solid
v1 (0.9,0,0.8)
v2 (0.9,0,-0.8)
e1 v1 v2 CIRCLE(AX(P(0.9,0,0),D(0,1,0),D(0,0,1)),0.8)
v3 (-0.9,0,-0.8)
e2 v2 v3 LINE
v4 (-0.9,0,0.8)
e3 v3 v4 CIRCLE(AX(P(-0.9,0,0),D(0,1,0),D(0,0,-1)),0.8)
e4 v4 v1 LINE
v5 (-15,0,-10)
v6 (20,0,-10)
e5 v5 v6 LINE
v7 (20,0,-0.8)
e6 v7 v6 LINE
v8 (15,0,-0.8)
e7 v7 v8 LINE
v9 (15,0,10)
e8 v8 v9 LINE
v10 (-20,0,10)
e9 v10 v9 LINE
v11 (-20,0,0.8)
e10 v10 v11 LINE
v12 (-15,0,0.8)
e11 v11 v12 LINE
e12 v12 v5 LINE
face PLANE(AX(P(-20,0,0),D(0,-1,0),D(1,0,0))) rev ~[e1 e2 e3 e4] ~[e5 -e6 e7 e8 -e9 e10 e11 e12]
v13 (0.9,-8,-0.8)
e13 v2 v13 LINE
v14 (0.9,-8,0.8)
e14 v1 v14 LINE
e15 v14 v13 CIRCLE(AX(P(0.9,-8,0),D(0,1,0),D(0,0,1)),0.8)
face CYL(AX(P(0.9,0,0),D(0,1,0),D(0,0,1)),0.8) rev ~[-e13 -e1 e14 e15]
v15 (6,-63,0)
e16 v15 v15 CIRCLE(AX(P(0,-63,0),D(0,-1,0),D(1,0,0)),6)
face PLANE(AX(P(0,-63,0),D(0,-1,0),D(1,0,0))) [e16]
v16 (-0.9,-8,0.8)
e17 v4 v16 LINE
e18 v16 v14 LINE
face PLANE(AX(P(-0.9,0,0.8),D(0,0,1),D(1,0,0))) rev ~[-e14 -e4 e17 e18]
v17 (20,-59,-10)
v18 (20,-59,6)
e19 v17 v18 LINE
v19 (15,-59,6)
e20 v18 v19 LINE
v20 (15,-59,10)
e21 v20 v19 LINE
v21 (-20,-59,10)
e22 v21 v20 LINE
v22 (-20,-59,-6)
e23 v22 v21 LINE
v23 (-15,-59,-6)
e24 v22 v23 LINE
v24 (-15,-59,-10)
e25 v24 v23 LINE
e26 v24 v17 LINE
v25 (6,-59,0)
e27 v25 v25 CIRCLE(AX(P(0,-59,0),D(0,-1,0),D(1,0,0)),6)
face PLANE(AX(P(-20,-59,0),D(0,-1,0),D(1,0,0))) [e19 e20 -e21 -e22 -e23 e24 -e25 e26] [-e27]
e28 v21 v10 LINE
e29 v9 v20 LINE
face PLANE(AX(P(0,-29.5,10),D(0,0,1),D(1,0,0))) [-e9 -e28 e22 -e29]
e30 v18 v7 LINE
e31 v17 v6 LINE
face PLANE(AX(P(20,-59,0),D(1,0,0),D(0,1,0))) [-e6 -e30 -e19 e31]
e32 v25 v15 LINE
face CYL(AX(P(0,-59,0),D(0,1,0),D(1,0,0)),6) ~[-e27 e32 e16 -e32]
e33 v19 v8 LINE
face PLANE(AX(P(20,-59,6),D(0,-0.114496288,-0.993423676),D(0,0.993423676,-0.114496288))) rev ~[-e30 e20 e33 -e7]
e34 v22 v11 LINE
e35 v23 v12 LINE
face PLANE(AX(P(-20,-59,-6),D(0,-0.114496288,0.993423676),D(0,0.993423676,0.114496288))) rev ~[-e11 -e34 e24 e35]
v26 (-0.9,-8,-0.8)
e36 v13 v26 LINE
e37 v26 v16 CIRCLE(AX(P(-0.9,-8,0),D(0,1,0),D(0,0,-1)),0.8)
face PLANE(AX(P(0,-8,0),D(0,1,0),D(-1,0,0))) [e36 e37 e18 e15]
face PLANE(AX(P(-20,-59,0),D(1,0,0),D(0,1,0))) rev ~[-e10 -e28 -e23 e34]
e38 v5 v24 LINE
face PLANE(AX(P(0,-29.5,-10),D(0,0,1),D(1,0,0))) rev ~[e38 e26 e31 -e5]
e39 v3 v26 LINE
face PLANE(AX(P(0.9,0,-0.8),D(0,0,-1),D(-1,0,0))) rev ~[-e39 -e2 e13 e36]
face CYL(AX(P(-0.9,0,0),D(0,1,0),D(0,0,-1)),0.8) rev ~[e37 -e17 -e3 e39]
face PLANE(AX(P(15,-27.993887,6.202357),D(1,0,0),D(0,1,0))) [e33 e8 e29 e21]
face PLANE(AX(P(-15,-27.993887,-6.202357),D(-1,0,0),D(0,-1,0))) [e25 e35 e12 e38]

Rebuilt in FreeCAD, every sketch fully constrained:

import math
import FreeCAD as App
import Part
import Sketcher

V = App.Vector


def add_polygon(sketch, points):
    """Adds a closed chain of lines whose ends are joined by coincident constraints."""
    first, n = sketch.GeometryCount, len(points)
    for a, b in zip(points, points[1:] + points[:1]):
        sketch.addGeometry(Part.LineSegment(App.Vector(*a, 0), App.Vector(*b, 0)), False)
    for i in range(n):
        sketch.addConstraint(Sketcher.Constraint("Coincident", first + i, 2, first + (i + 1) % n, 1))

doc = App.newDocument("Part")
body = doc.addObject("PartDesign::Body", "Body")

# Sketch on XY plane
sketch1 = body.newObject("Sketcher::SketchObject", "Sketch")
sketch1.AttachmentSupport = (doc.getObject("XY_Plane"), [""])
sketch1.MapMode = "FlatFace"
add_polygon(sketch1, [(-20, 0), (-20, -59), (20, -59), (20, 0)])  # lines 0-3
sketch1.addConstraint([
    Sketcher.Constraint("Vertical", 0),
    Sketcher.Constraint("Horizontal", 1),
    Sketcher.Constraint("Vertical", 2),
    Sketcher.Constraint("Horizontal", 3),
    Sketcher.Constraint("Symmetric", 2, 2, 3, 2, -1, 1),
    Sketcher.Constraint("DistanceX", 1, 1, 1, 2, 40.0),
    Sketcher.Constraint("DistanceY", 0, 2, 0, 1, 59.0),
])
pad1 = body.newObject("PartDesign::Pad", "Pad")
pad1.Profile = sketch1
pad1.Length = 20
pad1.Midplane = True

# Sketch on XZ plane
sketch2 = body.newObject("Sketcher::SketchObject", "Sketch001")
sketch2.AttachmentSupport = (doc.getObject("XZ_Plane"), [""])
sketch2.MapMode = "FlatFace"
sketch2.addGeometry([
    Part.LineSegment(V(0.9, -0.8, 0), V(-0.9, -0.8, 0)),
    Part.ArcOfCircle(Part.Circle(V(-0.9, 0, 0), V(0, 0, 1), 0.8), math.radians(90), math.radians(270)),
    Part.LineSegment(V(-0.9, 0.8, 0), V(0.9, 0.8, 0)),
    Part.ArcOfCircle(Part.Circle(V(0.9, 0, 0), V(0, 0, 1), 0.8), math.radians(-90), math.radians(90)),
], False)
sketch2.addConstraint([
    Sketcher.Constraint("Tangent", 0, 2, 1, 2),
    Sketcher.Constraint("Tangent", 1, 1, 2, 1),
    Sketcher.Constraint("Tangent", 2, 2, 3, 2),
    Sketcher.Constraint("Tangent", 3, 1, 0, 1),
    Sketcher.Constraint("Horizontal", 0),
    Sketcher.Constraint("Horizontal", 2),
    Sketcher.Constraint("Symmetric", 1, 3, 3, 3, -1, 1),
    Sketcher.Constraint("Radius", 1, 0.8),
    Sketcher.Constraint("DistanceX", 0, 2, 0, 1, 1.8),
])
pocket1 = body.newObject("PartDesign::Pocket", "Pocket")
pocket1.Profile = sketch2
pocket1.Length = 8
pocket1.Reversed = True

# Sketch on XZ plane
sketch3 = body.newObject("Sketcher::SketchObject", "Sketch002")
sketch3.AttachmentSupport = (doc.getObject("XZ_Plane"), [""])
sketch3.MapMode = "FlatFace"
sketch3.AttachmentOffset = App.Placement(V(0, 0, 59), App.Rotation())
sketch3.addGeometry(Part.Circle(V(0, 0, 0), V(0, 0, 1), 6), False)
sketch3.addConstraint([
    Sketcher.Constraint("Coincident", 0, 3, -1, 1),
    Sketcher.Constraint("Diameter", 0, 12.0),
])
pad2 = body.newObject("PartDesign::Pad", "Pad001")
pad2.Profile = sketch3
pad2.Length = 4

# Sketch on YZ plane
sketch4 = body.newObject("Sketcher::SketchObject", "Sketch003")
sketch4.AttachmentSupport = (doc.getObject("YZ_Plane"), [""])
sketch4.MapMode = "FlatFace"
sketch4.AttachmentOffset = App.Placement(V(0, 0, -20), App.Rotation())
add_polygon(sketch4, [(-59, -6), (0, 0.8), (0, -10), (-59, -10)])  # lines 0-3
sketch4.addConstraint([
    Sketcher.Constraint("Vertical", 1),
    Sketcher.Constraint("Horizontal", 2),
    Sketcher.Constraint("Vertical", 3),
    Sketcher.Constraint("PointOnObject", 0, 2, -2),
    Sketcher.Constraint("DistanceX", 2, 2, 2, 1, 59.0),
    Sketcher.Constraint("DistanceY", 3, 1, 3, 2, 4.0),
    Sketcher.Constraint("DistanceY", 1, 2, 1, 1, 10.8),
    Sketcher.Constraint("DistanceY", 1, 2, -1, 1, 10.0),
])
pocket2 = body.newObject("PartDesign::Pocket", "Pocket001")
pocket2.Profile = sketch4
pocket2.Length = 5
pocket2.Reversed = True

# Sketch on YZ plane
sketch5 = body.newObject("Sketcher::SketchObject", "Sketch004")
sketch5.AttachmentSupport = (doc.getObject("YZ_Plane"), [""])
sketch5.MapMode = "FlatFace"
sketch5.AttachmentOffset = App.Placement(V(0, 0, 20), App.Rotation())
add_polygon(sketch5, [(-59, 6), (0, -0.8), (0, 10), (-59, 10)])  # lines 0-3
sketch5.addConstraint([
    Sketcher.Constraint("Vertical", 1),
    Sketcher.Constraint("Horizontal", 2),
    Sketcher.Constraint("Vertical", 3),
    Sketcher.Constraint("PointOnObject", 0, 2, -2),
    Sketcher.Constraint("DistanceX", 2, 2, 2, 1, 59.0),
    Sketcher.Constraint("DistanceY", 3, 2, 3, 1, 4.0),
    Sketcher.Constraint("DistanceY", 1, 1, 1, 2, 10.8),
    Sketcher.Constraint("DistanceY", -1, 1, 1, 2, 10.0),
])
pocket3 = body.newObject("PartDesign::Pocket", "Pocket002")
pocket3.Profile = sketch5
pocket3.Length = 5

doc.recompute()
